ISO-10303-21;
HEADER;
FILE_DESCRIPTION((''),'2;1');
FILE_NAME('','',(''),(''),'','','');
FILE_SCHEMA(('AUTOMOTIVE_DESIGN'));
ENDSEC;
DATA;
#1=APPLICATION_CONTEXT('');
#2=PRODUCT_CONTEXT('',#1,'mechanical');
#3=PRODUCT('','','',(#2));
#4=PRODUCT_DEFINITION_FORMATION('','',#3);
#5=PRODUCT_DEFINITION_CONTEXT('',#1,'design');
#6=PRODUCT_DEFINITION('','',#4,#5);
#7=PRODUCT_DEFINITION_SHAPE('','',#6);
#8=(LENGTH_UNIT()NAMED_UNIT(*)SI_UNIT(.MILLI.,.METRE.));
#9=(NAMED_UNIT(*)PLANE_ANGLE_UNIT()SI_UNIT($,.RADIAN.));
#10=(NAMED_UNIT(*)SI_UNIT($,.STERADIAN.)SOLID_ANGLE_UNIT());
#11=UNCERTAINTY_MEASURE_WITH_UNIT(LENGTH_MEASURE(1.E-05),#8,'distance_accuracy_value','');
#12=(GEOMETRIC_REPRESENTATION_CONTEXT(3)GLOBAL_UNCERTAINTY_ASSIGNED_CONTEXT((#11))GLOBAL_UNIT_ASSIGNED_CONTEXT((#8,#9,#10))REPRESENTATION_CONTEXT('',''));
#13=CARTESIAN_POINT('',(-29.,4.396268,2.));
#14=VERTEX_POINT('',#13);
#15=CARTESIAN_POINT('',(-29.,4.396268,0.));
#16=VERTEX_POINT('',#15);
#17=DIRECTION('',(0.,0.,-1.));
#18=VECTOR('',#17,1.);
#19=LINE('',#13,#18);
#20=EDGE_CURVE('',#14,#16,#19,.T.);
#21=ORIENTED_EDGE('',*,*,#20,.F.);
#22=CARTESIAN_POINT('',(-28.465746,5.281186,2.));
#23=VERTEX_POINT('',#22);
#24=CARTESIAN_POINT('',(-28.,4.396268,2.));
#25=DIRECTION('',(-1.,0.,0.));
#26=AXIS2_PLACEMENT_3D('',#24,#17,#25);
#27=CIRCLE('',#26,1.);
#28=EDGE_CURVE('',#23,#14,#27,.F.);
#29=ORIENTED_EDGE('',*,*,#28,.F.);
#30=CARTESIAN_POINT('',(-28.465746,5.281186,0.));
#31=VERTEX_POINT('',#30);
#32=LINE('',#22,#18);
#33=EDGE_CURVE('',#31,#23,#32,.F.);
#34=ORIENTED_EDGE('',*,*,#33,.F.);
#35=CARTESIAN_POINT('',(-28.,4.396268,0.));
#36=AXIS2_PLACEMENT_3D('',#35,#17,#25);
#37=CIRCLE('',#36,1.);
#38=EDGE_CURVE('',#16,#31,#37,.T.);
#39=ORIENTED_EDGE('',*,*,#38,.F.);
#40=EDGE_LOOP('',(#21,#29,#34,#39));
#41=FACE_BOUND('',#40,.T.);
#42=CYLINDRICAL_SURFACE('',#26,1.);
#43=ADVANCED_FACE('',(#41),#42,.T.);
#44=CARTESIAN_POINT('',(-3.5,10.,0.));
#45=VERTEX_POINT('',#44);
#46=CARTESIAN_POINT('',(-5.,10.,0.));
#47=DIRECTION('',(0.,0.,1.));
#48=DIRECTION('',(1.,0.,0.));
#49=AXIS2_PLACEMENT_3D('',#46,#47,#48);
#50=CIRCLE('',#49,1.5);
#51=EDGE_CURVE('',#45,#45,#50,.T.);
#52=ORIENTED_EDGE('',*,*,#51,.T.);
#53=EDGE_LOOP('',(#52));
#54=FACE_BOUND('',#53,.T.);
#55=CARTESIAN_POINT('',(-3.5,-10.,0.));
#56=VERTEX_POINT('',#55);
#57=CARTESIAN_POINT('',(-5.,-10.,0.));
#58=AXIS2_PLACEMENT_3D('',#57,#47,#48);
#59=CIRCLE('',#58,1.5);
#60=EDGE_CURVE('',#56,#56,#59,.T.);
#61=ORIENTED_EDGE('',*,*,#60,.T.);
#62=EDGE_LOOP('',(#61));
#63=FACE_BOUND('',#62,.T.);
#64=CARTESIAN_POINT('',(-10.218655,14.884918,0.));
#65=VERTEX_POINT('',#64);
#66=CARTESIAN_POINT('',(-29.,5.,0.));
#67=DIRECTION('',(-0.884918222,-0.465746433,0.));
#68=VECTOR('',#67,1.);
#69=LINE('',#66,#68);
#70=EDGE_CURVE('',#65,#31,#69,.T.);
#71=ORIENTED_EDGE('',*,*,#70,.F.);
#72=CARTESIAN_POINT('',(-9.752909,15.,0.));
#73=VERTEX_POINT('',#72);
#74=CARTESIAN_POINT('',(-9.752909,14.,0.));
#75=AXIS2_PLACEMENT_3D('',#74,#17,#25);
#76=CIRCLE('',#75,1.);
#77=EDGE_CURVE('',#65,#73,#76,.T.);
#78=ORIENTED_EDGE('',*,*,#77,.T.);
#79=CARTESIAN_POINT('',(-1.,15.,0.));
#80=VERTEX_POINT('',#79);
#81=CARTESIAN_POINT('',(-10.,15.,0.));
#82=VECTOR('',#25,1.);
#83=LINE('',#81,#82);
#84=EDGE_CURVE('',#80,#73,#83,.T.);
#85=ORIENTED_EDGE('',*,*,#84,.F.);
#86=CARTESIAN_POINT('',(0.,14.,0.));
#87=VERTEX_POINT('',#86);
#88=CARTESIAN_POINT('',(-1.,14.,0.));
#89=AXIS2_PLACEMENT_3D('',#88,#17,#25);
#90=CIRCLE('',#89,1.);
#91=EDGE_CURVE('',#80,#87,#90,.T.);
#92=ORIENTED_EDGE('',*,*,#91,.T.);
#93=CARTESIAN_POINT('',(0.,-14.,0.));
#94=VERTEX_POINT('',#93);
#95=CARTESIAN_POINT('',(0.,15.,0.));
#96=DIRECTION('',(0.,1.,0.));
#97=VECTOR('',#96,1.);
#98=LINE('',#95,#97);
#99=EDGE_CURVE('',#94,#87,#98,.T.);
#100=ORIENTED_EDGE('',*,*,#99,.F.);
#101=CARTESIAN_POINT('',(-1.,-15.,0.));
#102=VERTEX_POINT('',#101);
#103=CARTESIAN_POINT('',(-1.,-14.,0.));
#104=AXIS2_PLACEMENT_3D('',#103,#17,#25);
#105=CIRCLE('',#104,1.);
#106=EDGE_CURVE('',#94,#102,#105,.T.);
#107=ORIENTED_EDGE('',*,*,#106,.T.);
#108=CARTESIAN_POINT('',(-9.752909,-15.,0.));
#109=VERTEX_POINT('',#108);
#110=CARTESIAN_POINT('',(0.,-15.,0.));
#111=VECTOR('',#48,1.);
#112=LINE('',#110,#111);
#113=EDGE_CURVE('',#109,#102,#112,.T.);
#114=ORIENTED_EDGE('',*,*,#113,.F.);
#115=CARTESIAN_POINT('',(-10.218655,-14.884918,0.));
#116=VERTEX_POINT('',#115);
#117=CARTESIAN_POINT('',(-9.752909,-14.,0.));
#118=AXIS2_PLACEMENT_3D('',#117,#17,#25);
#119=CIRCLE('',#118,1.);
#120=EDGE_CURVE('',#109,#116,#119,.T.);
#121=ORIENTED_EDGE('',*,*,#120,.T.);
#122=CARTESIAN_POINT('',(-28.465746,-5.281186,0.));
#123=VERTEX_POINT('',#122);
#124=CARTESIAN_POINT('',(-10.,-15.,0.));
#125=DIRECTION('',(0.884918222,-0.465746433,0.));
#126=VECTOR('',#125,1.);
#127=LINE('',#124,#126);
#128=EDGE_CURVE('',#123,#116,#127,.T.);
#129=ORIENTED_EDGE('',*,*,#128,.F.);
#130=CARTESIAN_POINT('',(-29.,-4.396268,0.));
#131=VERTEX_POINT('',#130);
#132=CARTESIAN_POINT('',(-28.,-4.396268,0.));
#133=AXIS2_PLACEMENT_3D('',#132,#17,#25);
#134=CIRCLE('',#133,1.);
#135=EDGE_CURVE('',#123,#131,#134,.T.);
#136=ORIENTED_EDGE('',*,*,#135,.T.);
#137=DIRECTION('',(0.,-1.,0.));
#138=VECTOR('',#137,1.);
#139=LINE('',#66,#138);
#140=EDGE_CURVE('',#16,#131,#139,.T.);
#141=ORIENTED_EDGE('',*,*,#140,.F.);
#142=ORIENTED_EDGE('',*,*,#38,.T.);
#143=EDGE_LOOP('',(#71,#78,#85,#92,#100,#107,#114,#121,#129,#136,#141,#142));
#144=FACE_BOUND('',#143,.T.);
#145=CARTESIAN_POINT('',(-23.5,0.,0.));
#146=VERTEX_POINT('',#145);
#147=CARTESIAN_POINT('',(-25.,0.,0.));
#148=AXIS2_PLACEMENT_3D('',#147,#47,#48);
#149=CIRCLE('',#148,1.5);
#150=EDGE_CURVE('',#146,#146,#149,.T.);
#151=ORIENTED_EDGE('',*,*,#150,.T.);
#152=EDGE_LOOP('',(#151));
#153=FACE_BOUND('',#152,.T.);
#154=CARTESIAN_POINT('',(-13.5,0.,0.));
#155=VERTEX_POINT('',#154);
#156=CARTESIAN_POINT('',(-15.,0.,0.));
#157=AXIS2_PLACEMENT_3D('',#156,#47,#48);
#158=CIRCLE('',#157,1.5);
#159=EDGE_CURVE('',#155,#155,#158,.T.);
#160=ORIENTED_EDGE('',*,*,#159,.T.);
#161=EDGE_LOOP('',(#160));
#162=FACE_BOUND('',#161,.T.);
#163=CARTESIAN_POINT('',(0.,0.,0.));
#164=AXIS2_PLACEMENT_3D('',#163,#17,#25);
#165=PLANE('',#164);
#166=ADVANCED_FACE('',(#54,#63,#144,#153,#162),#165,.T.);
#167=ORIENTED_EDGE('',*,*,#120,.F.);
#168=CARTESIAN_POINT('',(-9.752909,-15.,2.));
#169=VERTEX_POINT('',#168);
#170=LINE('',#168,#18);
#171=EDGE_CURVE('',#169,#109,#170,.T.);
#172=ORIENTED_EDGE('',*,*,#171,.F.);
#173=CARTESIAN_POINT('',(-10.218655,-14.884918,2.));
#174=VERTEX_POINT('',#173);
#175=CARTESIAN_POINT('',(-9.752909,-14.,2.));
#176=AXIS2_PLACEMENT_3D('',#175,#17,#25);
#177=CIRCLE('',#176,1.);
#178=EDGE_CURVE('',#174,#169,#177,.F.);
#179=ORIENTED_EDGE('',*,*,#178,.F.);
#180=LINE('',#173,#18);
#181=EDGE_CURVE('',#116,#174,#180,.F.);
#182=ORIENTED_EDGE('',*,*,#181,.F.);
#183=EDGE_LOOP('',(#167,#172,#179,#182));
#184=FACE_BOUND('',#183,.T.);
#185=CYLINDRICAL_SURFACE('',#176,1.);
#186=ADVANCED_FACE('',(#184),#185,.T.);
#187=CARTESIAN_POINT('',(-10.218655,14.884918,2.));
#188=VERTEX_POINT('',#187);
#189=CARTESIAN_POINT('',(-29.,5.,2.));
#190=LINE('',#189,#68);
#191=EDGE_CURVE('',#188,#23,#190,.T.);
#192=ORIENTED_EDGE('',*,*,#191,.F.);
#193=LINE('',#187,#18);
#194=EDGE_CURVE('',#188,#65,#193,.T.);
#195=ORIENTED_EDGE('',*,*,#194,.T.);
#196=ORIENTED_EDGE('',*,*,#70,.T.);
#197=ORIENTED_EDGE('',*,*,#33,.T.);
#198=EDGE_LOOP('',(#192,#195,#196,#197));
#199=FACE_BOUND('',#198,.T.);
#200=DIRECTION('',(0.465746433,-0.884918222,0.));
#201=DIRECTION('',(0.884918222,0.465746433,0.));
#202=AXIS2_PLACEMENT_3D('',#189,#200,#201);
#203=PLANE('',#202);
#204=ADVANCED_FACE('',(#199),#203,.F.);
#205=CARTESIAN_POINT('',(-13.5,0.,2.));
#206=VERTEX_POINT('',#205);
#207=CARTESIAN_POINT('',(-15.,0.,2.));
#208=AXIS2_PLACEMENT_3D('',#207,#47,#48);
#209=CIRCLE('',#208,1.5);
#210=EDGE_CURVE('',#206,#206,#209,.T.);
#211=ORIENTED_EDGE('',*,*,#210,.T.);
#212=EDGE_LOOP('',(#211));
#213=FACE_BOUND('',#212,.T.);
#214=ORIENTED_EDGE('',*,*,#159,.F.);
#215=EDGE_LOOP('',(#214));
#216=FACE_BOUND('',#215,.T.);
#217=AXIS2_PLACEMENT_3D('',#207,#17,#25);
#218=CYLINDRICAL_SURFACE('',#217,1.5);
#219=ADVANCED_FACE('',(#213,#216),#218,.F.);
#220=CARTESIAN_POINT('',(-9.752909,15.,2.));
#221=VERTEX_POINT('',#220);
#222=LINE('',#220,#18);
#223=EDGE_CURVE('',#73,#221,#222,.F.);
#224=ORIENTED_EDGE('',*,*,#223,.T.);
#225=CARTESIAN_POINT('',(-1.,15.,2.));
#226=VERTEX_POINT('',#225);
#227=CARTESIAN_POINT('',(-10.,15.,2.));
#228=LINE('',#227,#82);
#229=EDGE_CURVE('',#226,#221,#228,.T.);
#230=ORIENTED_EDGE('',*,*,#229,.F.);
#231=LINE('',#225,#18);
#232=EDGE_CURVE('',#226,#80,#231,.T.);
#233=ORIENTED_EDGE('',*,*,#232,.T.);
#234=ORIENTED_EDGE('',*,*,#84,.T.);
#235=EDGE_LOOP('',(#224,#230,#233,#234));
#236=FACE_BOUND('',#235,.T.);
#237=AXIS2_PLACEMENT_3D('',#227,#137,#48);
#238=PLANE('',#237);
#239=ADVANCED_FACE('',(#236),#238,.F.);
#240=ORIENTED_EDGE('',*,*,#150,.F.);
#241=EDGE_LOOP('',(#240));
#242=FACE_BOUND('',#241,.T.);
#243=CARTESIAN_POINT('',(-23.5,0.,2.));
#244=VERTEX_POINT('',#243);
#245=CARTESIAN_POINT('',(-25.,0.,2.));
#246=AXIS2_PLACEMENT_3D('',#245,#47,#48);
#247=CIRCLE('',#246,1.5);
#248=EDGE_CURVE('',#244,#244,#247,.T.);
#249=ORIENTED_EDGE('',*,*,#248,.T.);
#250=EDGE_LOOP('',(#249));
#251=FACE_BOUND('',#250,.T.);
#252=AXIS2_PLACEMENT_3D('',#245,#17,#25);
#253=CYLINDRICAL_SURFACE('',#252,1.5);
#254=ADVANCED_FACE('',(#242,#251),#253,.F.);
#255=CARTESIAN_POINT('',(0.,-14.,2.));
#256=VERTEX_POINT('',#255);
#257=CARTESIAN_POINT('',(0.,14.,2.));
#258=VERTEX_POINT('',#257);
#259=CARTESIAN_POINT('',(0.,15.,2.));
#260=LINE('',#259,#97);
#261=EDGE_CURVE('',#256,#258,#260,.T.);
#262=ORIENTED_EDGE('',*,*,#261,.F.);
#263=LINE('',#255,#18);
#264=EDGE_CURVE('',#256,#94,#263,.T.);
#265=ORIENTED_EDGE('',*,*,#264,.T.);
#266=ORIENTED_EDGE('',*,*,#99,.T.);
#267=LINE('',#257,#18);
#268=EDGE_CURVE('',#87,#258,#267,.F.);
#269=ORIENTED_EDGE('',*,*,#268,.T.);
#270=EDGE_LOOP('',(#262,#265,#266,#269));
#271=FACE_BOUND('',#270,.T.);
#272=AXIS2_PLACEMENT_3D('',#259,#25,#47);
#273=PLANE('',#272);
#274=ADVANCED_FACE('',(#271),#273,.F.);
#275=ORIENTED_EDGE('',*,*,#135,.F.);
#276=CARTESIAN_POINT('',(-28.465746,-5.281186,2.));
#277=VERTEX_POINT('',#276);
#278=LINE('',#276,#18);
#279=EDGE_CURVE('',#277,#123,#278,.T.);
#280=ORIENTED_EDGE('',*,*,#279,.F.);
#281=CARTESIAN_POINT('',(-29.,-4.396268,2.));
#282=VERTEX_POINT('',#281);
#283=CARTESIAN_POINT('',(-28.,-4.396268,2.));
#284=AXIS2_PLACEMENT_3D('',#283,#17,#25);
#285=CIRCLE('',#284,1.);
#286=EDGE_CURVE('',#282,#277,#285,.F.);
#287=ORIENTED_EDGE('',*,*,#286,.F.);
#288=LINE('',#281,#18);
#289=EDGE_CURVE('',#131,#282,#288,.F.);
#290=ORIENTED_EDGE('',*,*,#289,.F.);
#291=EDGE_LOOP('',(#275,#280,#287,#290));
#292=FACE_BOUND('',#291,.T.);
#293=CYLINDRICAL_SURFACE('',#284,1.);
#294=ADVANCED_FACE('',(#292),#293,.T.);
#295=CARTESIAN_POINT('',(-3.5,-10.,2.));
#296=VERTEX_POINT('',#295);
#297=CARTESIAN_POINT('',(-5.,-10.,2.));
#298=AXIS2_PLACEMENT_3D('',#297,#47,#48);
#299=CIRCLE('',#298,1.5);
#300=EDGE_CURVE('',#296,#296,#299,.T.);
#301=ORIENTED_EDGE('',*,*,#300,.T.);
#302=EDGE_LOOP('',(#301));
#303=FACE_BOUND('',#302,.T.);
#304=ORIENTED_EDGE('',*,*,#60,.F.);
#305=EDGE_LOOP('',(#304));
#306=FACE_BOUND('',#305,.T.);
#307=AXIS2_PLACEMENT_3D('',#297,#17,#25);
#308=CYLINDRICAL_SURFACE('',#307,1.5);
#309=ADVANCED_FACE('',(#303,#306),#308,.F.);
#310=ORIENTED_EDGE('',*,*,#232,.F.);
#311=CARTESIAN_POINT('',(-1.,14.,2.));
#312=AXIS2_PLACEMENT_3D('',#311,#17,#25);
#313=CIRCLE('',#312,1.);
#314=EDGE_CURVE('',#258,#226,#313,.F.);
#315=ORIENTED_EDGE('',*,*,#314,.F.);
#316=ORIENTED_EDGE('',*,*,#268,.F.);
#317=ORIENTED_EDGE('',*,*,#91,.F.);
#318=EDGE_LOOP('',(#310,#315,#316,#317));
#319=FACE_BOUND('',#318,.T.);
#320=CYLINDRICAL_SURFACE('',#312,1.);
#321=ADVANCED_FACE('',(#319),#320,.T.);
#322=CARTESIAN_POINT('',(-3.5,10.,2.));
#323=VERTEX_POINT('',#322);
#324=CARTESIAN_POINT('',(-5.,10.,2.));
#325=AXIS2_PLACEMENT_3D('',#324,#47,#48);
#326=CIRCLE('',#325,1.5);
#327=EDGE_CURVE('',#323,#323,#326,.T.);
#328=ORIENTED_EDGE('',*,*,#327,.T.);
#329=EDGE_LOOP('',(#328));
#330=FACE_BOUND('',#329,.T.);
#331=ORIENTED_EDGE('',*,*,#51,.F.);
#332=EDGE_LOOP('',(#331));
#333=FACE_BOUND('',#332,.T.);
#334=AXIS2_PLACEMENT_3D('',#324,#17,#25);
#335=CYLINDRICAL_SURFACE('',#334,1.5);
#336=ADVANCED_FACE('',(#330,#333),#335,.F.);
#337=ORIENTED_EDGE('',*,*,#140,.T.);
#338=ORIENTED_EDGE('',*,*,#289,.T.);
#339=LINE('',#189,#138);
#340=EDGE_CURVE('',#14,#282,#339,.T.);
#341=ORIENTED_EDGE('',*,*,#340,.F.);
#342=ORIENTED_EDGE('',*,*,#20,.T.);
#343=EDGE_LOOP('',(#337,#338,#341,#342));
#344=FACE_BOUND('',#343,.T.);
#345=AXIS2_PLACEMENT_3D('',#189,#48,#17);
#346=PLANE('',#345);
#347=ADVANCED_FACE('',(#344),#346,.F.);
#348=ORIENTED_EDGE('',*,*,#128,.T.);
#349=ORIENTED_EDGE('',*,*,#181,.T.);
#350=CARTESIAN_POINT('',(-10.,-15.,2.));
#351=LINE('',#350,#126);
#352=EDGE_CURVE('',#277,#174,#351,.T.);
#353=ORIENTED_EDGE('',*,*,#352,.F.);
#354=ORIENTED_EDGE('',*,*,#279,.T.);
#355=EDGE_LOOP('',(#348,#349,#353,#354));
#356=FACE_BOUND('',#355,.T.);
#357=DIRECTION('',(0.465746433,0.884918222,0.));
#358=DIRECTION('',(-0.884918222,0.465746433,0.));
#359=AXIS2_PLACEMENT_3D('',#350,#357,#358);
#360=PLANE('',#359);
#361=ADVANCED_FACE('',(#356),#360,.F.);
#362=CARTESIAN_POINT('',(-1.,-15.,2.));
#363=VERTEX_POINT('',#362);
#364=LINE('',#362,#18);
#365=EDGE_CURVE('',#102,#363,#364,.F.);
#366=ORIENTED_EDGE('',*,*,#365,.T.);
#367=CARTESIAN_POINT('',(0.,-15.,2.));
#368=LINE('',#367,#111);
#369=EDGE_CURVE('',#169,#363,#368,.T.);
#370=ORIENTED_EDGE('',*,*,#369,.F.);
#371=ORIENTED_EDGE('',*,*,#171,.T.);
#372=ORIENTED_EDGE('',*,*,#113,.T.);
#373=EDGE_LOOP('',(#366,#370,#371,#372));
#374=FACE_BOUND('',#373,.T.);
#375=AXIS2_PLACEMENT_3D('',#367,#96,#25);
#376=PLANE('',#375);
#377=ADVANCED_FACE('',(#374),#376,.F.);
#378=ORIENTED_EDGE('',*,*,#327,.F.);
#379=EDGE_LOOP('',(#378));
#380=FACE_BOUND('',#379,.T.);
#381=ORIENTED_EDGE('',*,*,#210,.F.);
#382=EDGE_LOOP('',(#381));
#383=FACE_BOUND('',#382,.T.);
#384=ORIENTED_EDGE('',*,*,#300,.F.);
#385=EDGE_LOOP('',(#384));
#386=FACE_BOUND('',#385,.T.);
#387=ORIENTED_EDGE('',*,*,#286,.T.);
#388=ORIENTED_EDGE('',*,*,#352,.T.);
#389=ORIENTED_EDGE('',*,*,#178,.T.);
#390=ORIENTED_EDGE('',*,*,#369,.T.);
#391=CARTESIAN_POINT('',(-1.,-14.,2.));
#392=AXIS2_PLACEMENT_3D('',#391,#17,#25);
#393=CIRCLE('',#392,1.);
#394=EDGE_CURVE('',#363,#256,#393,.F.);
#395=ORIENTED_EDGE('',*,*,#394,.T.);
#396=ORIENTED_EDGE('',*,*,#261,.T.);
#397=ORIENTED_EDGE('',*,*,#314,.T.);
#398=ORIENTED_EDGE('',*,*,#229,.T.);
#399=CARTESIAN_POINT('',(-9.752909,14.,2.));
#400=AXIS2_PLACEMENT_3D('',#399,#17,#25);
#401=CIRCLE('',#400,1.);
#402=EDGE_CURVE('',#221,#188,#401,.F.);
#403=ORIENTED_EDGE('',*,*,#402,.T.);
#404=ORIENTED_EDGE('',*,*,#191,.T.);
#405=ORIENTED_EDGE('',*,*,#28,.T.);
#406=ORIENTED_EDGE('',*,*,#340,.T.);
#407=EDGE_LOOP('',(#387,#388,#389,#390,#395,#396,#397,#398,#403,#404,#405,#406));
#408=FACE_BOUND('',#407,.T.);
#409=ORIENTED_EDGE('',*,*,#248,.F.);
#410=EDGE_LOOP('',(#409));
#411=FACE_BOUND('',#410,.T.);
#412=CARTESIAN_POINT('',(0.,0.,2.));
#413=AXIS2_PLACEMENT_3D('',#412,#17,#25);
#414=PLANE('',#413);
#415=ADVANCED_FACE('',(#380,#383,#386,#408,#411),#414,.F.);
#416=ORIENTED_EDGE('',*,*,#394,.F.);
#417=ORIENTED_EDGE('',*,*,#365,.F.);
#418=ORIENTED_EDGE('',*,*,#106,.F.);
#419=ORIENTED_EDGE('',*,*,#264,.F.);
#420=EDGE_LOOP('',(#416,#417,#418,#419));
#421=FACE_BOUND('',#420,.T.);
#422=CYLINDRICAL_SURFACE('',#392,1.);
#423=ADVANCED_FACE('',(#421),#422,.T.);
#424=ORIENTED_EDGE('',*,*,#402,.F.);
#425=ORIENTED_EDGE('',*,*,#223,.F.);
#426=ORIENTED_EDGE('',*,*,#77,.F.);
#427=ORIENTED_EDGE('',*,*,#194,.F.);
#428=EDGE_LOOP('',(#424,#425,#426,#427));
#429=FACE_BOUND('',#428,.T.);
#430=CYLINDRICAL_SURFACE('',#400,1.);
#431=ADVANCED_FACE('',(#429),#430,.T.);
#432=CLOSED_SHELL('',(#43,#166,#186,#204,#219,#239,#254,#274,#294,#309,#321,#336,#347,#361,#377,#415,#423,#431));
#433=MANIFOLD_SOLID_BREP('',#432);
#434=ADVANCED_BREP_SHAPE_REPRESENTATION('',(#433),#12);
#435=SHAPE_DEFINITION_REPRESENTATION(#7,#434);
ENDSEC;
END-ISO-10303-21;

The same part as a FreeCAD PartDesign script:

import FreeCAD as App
import Part
import Sketcher


def edges_at(feature, points):
    """Names of the edges that pass closest to the given points."""
    edges = feature.Shape.Edges
    near = lambda p: min(range(len(edges)), key=lambda i: edges[i].distToShape(Part.Vertex(*p))[0])
    return sorted({f"Edge{near(p) + 1}" for p in points})


def add_polygon(sketch, points):
    """Adds a closed chain of lines whose ends are joined by coincident constraints."""
    first, n = sketch.GeometryCount, len(points)
    for a, b in zip(points, points[1:] + points[:1]):
        sketch.addGeometry(Part.LineSegment(App.Vector(*a, 0), App.Vector(*b, 0)), False)
    for i in range(n):
        sketch.addConstraint(Sketcher.Constraint("Coincident", first + i, 2, first + (i + 1) % n, 1))

doc = App.newDocument("Part")
params = doc.addObject("Spreadsheet::Sheet", "Params")
for row, (alias, value) in enumerate([
    ("sketch1_diameter", "3 mm"),
    ("sketch1_width", "10 mm"),
    ("sketch1_height", "30 mm"),
    ("pad1_length", "2 mm"),
    ("fillet_radius", "1 mm"),
], start=1):
    params.set(f"A{row}", alias)
    params.set(f"B{row}", "=" + value)
    params.setAlias(f"B{row}", alias)

body = doc.addObject("PartDesign::Body", "Body")

# Sketch on XY plane
sketch1 = doc.addObject("Sketcher::SketchObject", "Sketch")
body.addObject(sketch1)
sketch1.AttachmentSupport = (doc.XY_Plane, [""])
sketch1.MapMode = "FlatFace"
add_polygon(sketch1, [(0, -15), (0, 15), (-10, 15), (-29, 5), (-29, -5), (-10, -15)])  # lines 0-5
sketch1.addGeometry(Part.Circle(App.Vector(-5, -10, 0), App.Vector(0, 0, 1), 1.5), False)  # 6
sketch1.addGeometry(Part.Circle(App.Vector(-5, 10, 0), App.Vector(0, 0, 1), 1.5), False)  # 7
sketch1.addGeometry(Part.Circle(App.Vector(-15, 0, 0), App.Vector(0, 0, 1), 1.5), False)  # 8
sketch1.addGeometry(Part.Circle(App.Vector(-25, 0, 0), App.Vector(0, 0, 1), 1.5), False)  # 9
sketch1.addConstraint([
    Sketcher.Constraint("Vertical", 0),
    Sketcher.Constraint("Horizontal", 1),
    Sketcher.Constraint("Vertical", 3),
    Sketcher.Constraint("Horizontal", 5),
    Sketcher.Constraint("Equal", 6, 7),
    Sketcher.Constraint("Equal", 7, 8),
    Sketcher.Constraint("Equal", 8, 9),
    Sketcher.Constraint("Symmetric", 0, 2, 5, 2, -1, 1),
    Sketcher.Constraint("Symmetric", 6, 3, 7, 3, -1),
    Sketcher.Constraint("PointOnObject", 8, 3, -1),
    Sketcher.Constraint("PointOnObject", 9, 3, -1),
    Sketcher.Constraint("Vertical", 1, 2, 4, 2),
    Sketcher.Constraint("Equal", 5, 3),
    Sketcher.Constraint("Equal", 2, 4),
    Sketcher.Constraint("Diameter", 6, 3.0),
    Sketcher.Constraint("DistanceX", 1, 2, 1, 1, 10.0),
    Sketcher.Constraint("DistanceY", 0, 1, 0, 2, 30.0),
    Sketcher.Constraint("DistanceX", 6, 3, -1, 1, 5.0),
    Sketcher.Constraint("DistanceY", 6, 3, -1, 1, 10.0),
    Sketcher.Constraint("DistanceX", 8, 3, -1, 1, 15.0),
    Sketcher.Constraint("DistanceX", 9, 3, -1, 1, 25.0),
    Sketcher.Constraint("DistanceX", 2, 2, -1, 1, 29.0),
])
sketch1.setExpression("Constraints[20]", "Params.sketch1_diameter")
sketch1.setExpression("Constraints[21]", "Params.sketch1_width")
sketch1.setExpression("Constraints[22]", "Params.sketch1_height")
pad1 = doc.addObject("PartDesign::Pad", "Pad")
body.addObject(pad1)
pad1.Profile = sketch1
pad1.setExpression("Length", "Params.pad1_length")
doc.recompute()

fillet = doc.addObject("PartDesign::Fillet", "Fillet")
body.addObject(fillet)
fillet.Base = (pad1, edges_at(pad1, [
    (0, 15, 1),
    (0, -15, 1),
    (-10, -15, 1),
    (-29, -5, 1),
    (-29, 5, 1),
    (-10, 15, 1),
]))
fillet.setExpression("Radius", "Params.fillet_radius")

doc.recompute()
